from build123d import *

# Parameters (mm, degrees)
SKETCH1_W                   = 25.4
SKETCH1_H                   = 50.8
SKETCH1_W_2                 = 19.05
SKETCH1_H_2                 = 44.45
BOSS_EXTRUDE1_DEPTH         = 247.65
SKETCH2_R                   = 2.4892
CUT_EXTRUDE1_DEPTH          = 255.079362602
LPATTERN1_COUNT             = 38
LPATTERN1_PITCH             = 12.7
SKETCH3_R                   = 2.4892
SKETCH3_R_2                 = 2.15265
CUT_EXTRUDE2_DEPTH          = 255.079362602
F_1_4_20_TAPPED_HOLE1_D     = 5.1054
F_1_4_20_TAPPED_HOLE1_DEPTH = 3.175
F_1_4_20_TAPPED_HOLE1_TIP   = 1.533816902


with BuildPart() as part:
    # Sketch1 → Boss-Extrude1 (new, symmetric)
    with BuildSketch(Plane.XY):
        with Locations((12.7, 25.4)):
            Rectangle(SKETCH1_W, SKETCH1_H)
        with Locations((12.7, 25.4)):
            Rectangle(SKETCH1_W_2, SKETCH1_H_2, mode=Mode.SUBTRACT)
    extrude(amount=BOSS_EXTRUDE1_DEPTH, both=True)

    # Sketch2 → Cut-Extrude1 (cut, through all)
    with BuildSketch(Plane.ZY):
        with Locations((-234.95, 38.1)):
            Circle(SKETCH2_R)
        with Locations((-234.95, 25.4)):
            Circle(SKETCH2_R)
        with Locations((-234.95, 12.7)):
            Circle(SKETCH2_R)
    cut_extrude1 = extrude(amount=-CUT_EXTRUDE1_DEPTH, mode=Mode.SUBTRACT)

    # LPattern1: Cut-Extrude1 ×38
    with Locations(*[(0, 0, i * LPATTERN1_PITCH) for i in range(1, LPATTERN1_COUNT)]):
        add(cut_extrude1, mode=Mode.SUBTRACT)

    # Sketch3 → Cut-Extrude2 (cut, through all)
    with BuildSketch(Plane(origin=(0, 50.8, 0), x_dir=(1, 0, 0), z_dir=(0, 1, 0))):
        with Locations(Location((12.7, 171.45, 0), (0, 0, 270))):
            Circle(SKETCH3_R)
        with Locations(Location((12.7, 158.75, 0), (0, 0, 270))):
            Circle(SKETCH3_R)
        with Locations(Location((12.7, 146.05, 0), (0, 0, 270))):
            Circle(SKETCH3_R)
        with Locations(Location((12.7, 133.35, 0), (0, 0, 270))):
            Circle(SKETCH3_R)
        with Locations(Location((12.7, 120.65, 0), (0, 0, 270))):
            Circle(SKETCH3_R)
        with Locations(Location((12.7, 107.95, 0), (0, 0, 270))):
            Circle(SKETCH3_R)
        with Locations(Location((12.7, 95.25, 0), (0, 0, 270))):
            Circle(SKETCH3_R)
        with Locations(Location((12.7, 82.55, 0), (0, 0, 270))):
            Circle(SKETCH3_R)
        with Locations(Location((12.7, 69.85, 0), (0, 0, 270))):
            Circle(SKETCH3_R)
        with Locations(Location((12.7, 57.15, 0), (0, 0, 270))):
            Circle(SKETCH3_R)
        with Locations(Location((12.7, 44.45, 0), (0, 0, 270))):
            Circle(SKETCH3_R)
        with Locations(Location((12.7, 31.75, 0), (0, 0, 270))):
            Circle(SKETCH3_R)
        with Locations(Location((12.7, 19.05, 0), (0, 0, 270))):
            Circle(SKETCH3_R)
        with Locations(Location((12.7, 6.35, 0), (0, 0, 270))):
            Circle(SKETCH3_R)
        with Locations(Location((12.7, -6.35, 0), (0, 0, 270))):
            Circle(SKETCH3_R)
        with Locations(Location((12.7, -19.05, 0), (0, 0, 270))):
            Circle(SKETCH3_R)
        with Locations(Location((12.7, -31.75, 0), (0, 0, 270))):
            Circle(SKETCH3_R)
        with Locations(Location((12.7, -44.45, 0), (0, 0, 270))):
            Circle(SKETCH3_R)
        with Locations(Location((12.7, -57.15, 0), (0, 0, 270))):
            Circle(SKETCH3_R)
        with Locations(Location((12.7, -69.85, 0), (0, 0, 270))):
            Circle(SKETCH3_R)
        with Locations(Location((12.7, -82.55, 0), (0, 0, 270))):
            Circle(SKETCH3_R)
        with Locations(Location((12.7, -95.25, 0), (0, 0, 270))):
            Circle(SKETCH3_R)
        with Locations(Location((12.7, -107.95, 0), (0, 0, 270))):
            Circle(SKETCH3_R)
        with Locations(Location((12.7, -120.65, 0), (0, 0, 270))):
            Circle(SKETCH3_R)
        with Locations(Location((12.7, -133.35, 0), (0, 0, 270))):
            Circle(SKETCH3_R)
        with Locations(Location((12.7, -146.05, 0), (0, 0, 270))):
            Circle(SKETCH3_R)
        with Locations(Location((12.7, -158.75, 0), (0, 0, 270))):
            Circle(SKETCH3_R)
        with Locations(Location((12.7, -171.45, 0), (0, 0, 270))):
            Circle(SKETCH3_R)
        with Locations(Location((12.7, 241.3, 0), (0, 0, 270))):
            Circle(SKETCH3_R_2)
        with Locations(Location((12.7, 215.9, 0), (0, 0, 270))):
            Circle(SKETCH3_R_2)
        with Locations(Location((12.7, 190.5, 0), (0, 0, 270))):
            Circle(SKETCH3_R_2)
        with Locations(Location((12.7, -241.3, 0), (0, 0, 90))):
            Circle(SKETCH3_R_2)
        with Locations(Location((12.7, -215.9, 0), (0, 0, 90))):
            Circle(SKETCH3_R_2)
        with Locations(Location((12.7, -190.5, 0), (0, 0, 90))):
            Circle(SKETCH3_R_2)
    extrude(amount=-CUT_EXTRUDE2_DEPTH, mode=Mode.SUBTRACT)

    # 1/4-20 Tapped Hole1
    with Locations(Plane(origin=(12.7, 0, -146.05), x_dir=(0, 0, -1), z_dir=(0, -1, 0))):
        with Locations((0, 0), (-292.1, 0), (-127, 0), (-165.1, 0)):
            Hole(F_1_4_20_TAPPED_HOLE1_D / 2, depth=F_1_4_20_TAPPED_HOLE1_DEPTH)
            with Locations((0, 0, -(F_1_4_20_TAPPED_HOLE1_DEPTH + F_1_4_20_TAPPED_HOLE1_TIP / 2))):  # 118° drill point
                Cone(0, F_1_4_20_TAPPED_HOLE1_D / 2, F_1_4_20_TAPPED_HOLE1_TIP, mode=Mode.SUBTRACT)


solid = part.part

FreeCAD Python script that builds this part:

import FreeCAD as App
import Part
import Sketcher
from FreeCAD import Vector
Q = App.Units.Quantity


def add_polygon(sketch, points):
    """Adds a closed chain of lines whose ends are joined by coincident constraints."""
    first, n = sketch.GeometryCount, len(points)
    for a, b in zip(points, points[1:] + points[:1]):
        sketch.addGeometry(Part.LineSegment(App.Vector(*a, 0), App.Vector(*b, 0)), False)
    for i in range(n):
        sketch.addConstraint(Sketcher.Constraint("Coincident", first + i, 2, first + (i + 1) % n, 1))

doc = App.newDocument("Part")
body = doc.addObject("PartDesign::Body", "Body")

# Sketch on XY plane
sketch1 = body.newObject("Sketcher::SketchObject", "Sketch")
sketch1.AttachmentSupport = (doc.getObject("XY_Plane"), [""])
sketch1.MapMode = "FlatFace"
add_polygon(sketch1, [(0, 51), (0, 0), (25, 0), (25, 51)])  # lines 0-3
add_polygon(sketch1, [(22, 3), (3, 3), (3, 48), (22, 48)])  # lines 4-7
sketch1.addConstraint([
    Sketcher.Constraint("Vertical", 0),
    Sketcher.Constraint("Horizontal", 1),
    Sketcher.Constraint("Vertical", 2),
    Sketcher.Constraint("Horizontal", 3),
    Sketcher.Constraint("Horizontal", 4),
    Sketcher.Constraint("Vertical", 5),
    Sketcher.Constraint("Horizontal", 6),
    Sketcher.Constraint("Vertical", 7),
    Sketcher.Constraint("Coincident", 0, 2, -1, 1),
    Sketcher.Constraint("DistanceX", 1, 1, 1, 2, Q("1 in")),
    Sketcher.Constraint("DistanceY", 0, 2, 0, 1, Q("2 in")),
    Sketcher.Constraint("DistanceX", 4, 2, 4, 1, Q("0.75 in")),
    Sketcher.Constraint("DistanceY", 5, 1, 5, 2, Q("1.75 in")),
    Sketcher.Constraint("DistanceX", -1, 1, 4, 2, Q("0.125 in")),
    Sketcher.Constraint("DistanceY", -1, 1, 4, 2, Q("0.125 in")),
])
pad1 = body.newObject("PartDesign::Pad", "Pad")
pad1.Profile = sketch1
pad1.Length = Q("19.5 in")
pad1.Midplane = True

# Sketch on YZ plane
sketch2 = body.newObject("Sketcher::SketchObject", "Sketch001")
sketch2.AttachmentSupport = (doc.getObject("YZ_Plane"), [""])
sketch2.MapMode = "FlatFace"
sketch2.addGeometry([
    Part.Circle(Vector(38.1, -234.9, 0), Vector(0, 0, 1), 2.5),
    Part.Circle(Vector(25.4, -234.9, 0), Vector(0, 0, 1), 2.5),
    Part.Circle(Vector(12.7, -234.9, 0), Vector(0, 0, 1), 2.5),
], False)
sketch2.addConstraint([
    Sketcher.Constraint("Equal", 0, 1),
    Sketcher.Constraint("Equal", 1, 2),
    Sketcher.Constraint("Horizontal", 0, 3, 1, 3),
    Sketcher.Constraint("Horizontal", 1, 3, 2, 3),
    Sketcher.Constraint("Diameter", 0, Q("0.196 in")),
    Sketcher.Constraint("DistanceX", -1, 1, 1, 3, Q("1 in")),
    Sketcher.Constraint("DistanceX", 2, 3, 0, 3, Q("1 in")),
    Sketcher.Constraint("DistanceX", -1, 1, 0, 3, Q("1.5 in")),
    Sketcher.Constraint("DistanceY", 0, 3, -1, 1, Q("9.25 in")),
])
pocket1 = body.newObject("PartDesign::Pocket", "Pocket")
pocket1.Profile = sketch2
pocket1.Type = "ThroughAll"
pocket1.Reversed = True
doc.recompute()

linearpattern = body.newObject("PartDesign::LinearPattern", "LinearPattern")
linearpattern.Originals = [pocket1]
linearpattern.Direction = (doc.getObject("Z_Axis"), [""])
linearpattern.Mode = "offset"
linearpattern.Offset = Q("0.5 in")
linearpattern.Occurrences = 38
body.Tip = linearpattern

# Sketch on XZ plane
sketch3 = body.newObject("Sketcher::SketchObject", "Sketch002")
sketch3.AttachmentSupport = (doc.getObject("XZ_Plane"), [""])
sketch3.MapMode = "FlatFace"
sketch3.AttachmentOffset = App.Placement(Vector(0, 0, -2 * 25.4), App.Rotation())
sketch3.addGeometry([
    Part.Circle(Vector(12.7, -171.4, 0), Vector(0, 0, 1), 2.5),  # 0
    Part.Circle(Vector(12.7, -158.8, 0), Vector(0, 0, 1), 2.5),  # 1
    Part.Circle(Vector(12.7, -146.1, 0), Vector(0, 0, 1), 2.5),  # 2
    Part.Circle(Vector(12.7, -133.3, 0), Vector(0, 0, 1), 2.5),  # 3
    Part.Circle(Vector(12.7, -120.7, 0), Vector(0, 0, 1), 2.5),  # 4
    Part.Circle(Vector(12.7, -108, 0), Vector(0, 0, 1), 2.5),  # 5
    Part.Circle(Vector(12.7, -95.2, 0), Vector(0, 0, 1), 2.5),  # 6
    Part.Circle(Vector(12.7, -82.5, 0), Vector(0, 0, 1), 2.5),  # 7
    Part.Circle(Vector(12.7, -69.8, 0), Vector(0, 0, 1), 2.5),  # 8
    Part.Circle(Vector(12.7, -57.1, 0), Vector(0, 0, 1), 2.5),  # 9
    Part.Circle(Vector(12.7, -44.5, 0), Vector(0, 0, 1), 2.5),  # 10
    Part.Circle(Vector(12.7, -31.8, 0), Vector(0, 0, 1), 2.5),  # 11
    Part.Circle(Vector(12.7, -19.1, 0), Vector(0, 0, 1), 2.5),  # 12
    Part.Circle(Vector(12.7, -6.3, 0), Vector(0, 0, 1), 2.5),  # 13
    Part.Circle(Vector(12.7, 6.3, 0), Vector(0, 0, 1), 2.5),  # 14
    Part.Circle(Vector(12.7, 19.1, 0), Vector(0, 0, 1), 2.5),  # 15
    Part.Circle(Vector(12.7, 31.8, 0), Vector(0, 0, 1), 2.5),  # 16
    Part.Circle(Vector(12.7, 44.5, 0), Vector(0, 0, 1), 2.5),  # 17
    Part.Circle(Vector(12.7, 57.1, 0), Vector(0, 0, 1), 2.5),  # 18
    Part.Circle(Vector(12.7, 69.8, 0), Vector(0, 0, 1), 2.5),  # 19
    Part.Circle(Vector(12.7, 82.5, 0), Vector(0, 0, 1), 2.5),  # 20
    Part.Circle(Vector(12.7, 95.2, 0), Vector(0, 0, 1), 2.5),  # 21
    Part.Circle(Vector(12.7, 108, 0), Vector(0, 0, 1), 2.5),  # 22
    Part.Circle(Vector(12.7, 120.7, 0), Vector(0, 0, 1), 2.5),  # 23
    Part.Circle(Vector(12.7, 133.3, 0), Vector(0, 0, 1), 2.5),  # 24
    Part.Circle(Vector(12.7, 146.1, 0), Vector(0, 0, 1), 2.5),  # 25
    Part.Circle(Vector(12.7, 158.8, 0), Vector(0, 0, 1), 2.5),  # 26
    Part.Circle(Vector(12.7, 171.4, 0), Vector(0, 0, 1), 2.5),  # 27
    Part.Circle(Vector(12.7, -241.3, 0), Vector(0, 0, 1), 2.2),  # 28
    Part.Circle(Vector(12.7, -215.9, 0), Vector(0, 0, 1), 2.2),  # 29
    Part.Circle(Vector(12.7, -190.5, 0), Vector(0, 0, 1), 2.2),  # 30
    Part.Circle(Vector(12.7, 241.3, 0), Vector(0, 0, 1), 2.2),  # 31
    Part.Circle(Vector(12.7, 215.9, 0), Vector(0, 0, 1), 2.2),  # 32
    Part.Circle(Vector(12.7, 190.5, 0), Vector(0, 0, 1), 2.2),  # 33
], False)
sketch3.addConstraint([
    Sketcher.Constraint("Equal", 0, 1),
    Sketcher.Constraint("Equal", 1, 2),
    Sketcher.Constraint("Equal", 2, 3),
    Sketcher.Constraint("Equal", 3, 4),
    Sketcher.Constraint("Equal", 4, 5),
    Sketcher.Constraint("Equal", 5, 6),
    Sketcher.Constraint("Equal", 6, 7),
    Sketcher.Constraint("Equal", 7, 8),
    Sketcher.Constraint("Equal", 8, 9),
    Sketcher.Constraint("Equal", 9, 10),
    Sketcher.Constraint("Equal", 10, 11),
    Sketcher.Constraint("Equal", 11, 12),
    Sketcher.Constraint("Equal", 12, 13),
    Sketcher.Constraint("Equal", 13, 14),
    Sketcher.Constraint("Equal", 14, 15),
    Sketcher.Constraint("Equal", 15, 16),
    Sketcher.Constraint("Equal", 16, 17),
    Sketcher.Constraint("Equal", 17, 18),
    Sketcher.Constraint("Equal", 18, 19),
    Sketcher.Constraint("Equal", 19, 20),
    Sketcher.Constraint("Equal", 20, 21),
    Sketcher.Constraint("Equal", 21, 22),
    Sketcher.Constraint("Equal", 22, 23),
    Sketcher.Constraint("Equal", 23, 24),
    Sketcher.Constraint("Equal", 24, 25),
    Sketcher.Constraint("Equal", 25, 26),
    Sketcher.Constraint("Equal", 26, 27),
    Sketcher.Constraint("Equal", 28, 29),
    Sketcher.Constraint("Equal", 29, 30),
    Sketcher.Constraint("Equal", 30, 31),
    Sketcher.Constraint("Equal", 31, 32),
    Sketcher.Constraint("Equal", 32, 33),
    Sketcher.Constraint("Symmetric", 13, 3, 14, 3, -1),
    Sketcher.Constraint("Symmetric", 12, 3, 15, 3, -1),
    Sketcher.Constraint("Symmetric", 11, 3, 16, 3, -1),
    Sketcher.Constraint("Symmetric", 10, 3, 17, 3, -1),
    Sketcher.Constraint("Symmetric", 9, 3, 18, 3, -1),
    Sketcher.Constraint("Symmetric", 8, 3, 19, 3, -1),
    Sketcher.Constraint("Symmetric", 7, 3, 20, 3, -1),
    Sketcher.Constraint("Symmetric", 6, 3, 21, 3, -1),
    Sketcher.Constraint("Symmetric", 5, 3, 22, 3, -1),
    Sketcher.Constraint("Symmetric", 4, 3, 23, 3, -1),
    Sketcher.Constraint("Symmetric", 3, 3, 24, 3, -1),
    Sketcher.Constraint("Symmetric", 2, 3, 25, 3, -1),
    Sketcher.Constraint("Symmetric", 1, 3, 26, 3, -1),
    Sketcher.Constraint("Symmetric", 0, 3, 27, 3, -1),
    Sketcher.Constraint("Symmetric", 28, 3, 31, 3, -1),
    Sketcher.Constraint("Symmetric", 29, 3, 32, 3, -1),
    Sketcher.Constraint("Symmetric", 30, 3, 33, 3, -1),
    Sketcher.Constraint("Vertical", 0, 3, 1, 3),
    Sketcher.Constraint("Vertical", 1, 3, 2, 3),
    Sketcher.Constraint("Vertical", 2, 3, 3, 3),
    Sketcher.Constraint("Vertical", 3, 3, 4, 3),
    Sketcher.Constraint("Vertical", 4, 3, 5, 3),
    Sketcher.Constraint("Vertical", 5, 3, 6, 3),
    Sketcher.Constraint("Vertical", 6, 3, 7, 3),
    Sketcher.Constraint("Vertical", 7, 3, 8, 3),
    Sketcher.Constraint("Vertical", 8, 3, 9, 3),
    Sketcher.Constraint("Vertical", 9, 3, 10, 3),
    Sketcher.Constraint("Vertical", 10, 3, 11, 3),
    Sketcher.Constraint("Vertical", 11, 3, 12, 3),
    Sketcher.Constraint("Vertical", 12, 3, 13, 3),
    Sketcher.Constraint("Vertical", 27, 3, 28, 3),
    Sketcher.Constraint("Vertical", 28, 3, 29, 3),
    Sketcher.Constraint("Vertical", 29, 3, 30, 3),
    Sketcher.Constraint("Diameter", 0, Q("0.196 in")),
    Sketcher.Constraint("DistanceY", 0, 3, 2, 3, Q("1 in")),
    Sketcher.Constraint("DistanceY", 1, 3, 3, 3, Q("1 in")),
    Sketcher.Constraint("DistanceY", 2, 3, 4, 3, Q("1 in")),
    Sketcher.Constraint("DistanceY", 3, 3, 5, 3, Q("1 in")),
    Sketcher.Constraint("DistanceY", 4, 3, 6, 3, Q("1 in")),
    Sketcher.Constraint("DistanceY", 5, 3, 7, 3, Q("1 in")),
    Sketcher.Constraint("DistanceY", 6, 3, 8, 3, Q("1 in")),
    Sketcher.Constraint("DistanceY", 7, 3, 9, 3, Q("1 in")),
    Sketcher.Constraint("DistanceY", 8, 3, 10, 3, Q("1 in")),
    Sketcher.Constraint("DistanceY", 9, 3, 11, 3, Q("1 in")),
    Sketcher.Constraint("DistanceY", 10, 3, 12, 3, Q("1 in")),
    Sketcher.Constraint("DistanceY", 11, 3, 13, 3, Q("1 in")),
    Sketcher.Constraint("DistanceY", 12, 3, 14, 3, Q("1 in")),
    Sketcher.Constraint("DistanceY", 28, 3, 29, 3, Q("1 in")),
    Sketcher.Constraint("DistanceY", 29, 3, 30, 3, Q("1 in")),
    Sketcher.Constraint("Diameter", 28, Q("0.1695 in")),
    Sketcher.Constraint("DistanceX", -1, 1, 0, 3, Q("0.5 in")),
    Sketcher.Constraint("DistanceY", 28, 3, -1, 1, Q("9.5 in")),
    Sketcher.Constraint("DistanceY", 0, 3, 1, 3, Q("0.5 in")),
])
pocket2 = body.newObject("PartDesign::Pocket", "Pocket001")
pocket2.Profile = sketch3
pocket2.Type = "ThroughAll"
pocket2.Reversed = True

# Sketch on XZ plane
sketch4 = body.newObject("Sketcher::SketchObject", "Sketch003")
sketch4.AttachmentSupport = (doc.getObject("XZ_Plane"), [""])
sketch4.MapMode = "FlatFace"
sketch4.addGeometry([
    Part.Circle(Vector(12.7, -146.1, 0), Vector(0, 0, 1), 2.6),
    Part.Circle(Vector(12.7, 146.1, 0), Vector(0, 0, 1), 2.6),
    Part.Circle(Vector(12.7, -19.1, 0), Vector(0, 0, 1), 2.6),
    Part.Circle(Vector(12.7, 19.1, 0), Vector(0, 0, 1), 2.6),
], False)
sketch4.addConstraint([
    Sketcher.Constraint("Equal", 0, 1),
    Sketcher.Constraint("Equal", 1, 2),
    Sketcher.Constraint("Equal", 2, 3),
    Sketcher.Constraint("Symmetric", 0, 3, 1, 3, -1),
    Sketcher.Constraint("Symmetric", 2, 3, 3, 3, -1),
    Sketcher.Constraint("Vertical", 1, 3, 2, 3),
    Sketcher.Constraint("Diameter", 0, Q("0.201 in")),
    Sketcher.Constraint("DistanceY", 0, 3, 2, 3, Q("5 in")),
    Sketcher.Constraint("DistanceX", -1, 1, 0, 3, Q("0.5 in")),
    Sketcher.Constraint("DistanceY", 0, 3, 1, 3, Q("11.5 in")),
])
doc.recompute()
hole = body.newObject("PartDesign::Hole", "Hole")
hole.Profile = sketch4
hole.ThreadType = "None"
hole.Diameter = Q("0.201 in")
hole.DepthType = "Dimension"
hole.Depth = Q("0.125 in")
hole.DrillPoint = "Angled"
hole.DrillPointAngle = 118

doc.recompute()
